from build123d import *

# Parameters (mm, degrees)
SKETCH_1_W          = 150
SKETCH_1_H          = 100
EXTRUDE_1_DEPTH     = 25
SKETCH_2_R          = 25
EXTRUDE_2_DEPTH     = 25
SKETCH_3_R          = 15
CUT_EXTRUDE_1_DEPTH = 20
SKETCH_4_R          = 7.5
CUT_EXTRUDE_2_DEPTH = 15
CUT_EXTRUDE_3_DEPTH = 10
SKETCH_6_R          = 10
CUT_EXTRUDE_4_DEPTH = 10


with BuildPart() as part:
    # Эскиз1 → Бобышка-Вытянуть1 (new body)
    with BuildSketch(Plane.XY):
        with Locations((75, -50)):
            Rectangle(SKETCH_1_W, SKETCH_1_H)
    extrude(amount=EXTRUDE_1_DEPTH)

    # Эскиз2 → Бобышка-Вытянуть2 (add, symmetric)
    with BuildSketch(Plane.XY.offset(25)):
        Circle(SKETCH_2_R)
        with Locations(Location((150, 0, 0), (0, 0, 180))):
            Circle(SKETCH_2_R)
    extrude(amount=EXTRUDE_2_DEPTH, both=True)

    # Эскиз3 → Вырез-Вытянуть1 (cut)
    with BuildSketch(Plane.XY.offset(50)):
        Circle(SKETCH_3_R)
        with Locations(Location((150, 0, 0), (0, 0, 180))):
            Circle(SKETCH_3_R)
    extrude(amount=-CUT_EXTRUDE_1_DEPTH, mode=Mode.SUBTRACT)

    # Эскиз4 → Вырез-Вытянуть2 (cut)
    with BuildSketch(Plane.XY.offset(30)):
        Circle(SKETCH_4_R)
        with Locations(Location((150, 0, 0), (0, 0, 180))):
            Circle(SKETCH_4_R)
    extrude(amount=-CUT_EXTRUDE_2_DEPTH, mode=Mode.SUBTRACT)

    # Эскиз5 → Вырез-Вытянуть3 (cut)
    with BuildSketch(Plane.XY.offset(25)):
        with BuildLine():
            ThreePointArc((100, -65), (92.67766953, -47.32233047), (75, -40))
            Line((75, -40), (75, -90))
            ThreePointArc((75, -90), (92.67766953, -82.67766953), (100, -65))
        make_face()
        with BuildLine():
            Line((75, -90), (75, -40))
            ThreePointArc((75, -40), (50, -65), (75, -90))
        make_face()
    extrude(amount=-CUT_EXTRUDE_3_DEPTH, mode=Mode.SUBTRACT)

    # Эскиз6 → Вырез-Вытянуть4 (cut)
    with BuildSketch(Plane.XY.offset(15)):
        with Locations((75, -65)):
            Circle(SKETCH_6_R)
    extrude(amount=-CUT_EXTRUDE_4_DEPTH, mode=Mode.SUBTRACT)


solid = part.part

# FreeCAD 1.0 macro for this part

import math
import FreeCAD as App
import Part
import Sketcher
Q = App.Units.Quantity

doc = App.newDocument("Part")
params = doc.addObject("Spreadsheet::Sheet", "Params")
for row, (alias, value) in enumerate([
    ("sketch1_width", "150 mm"),
    ("sketch1_height", "100 mm"),
    ("pad1_length", "25 mm"),
    ("sketch2_diameter", "50 mm"),
    ("pad2_length", "50 mm"),
    ("sketch3_diameter", "30 mm"),
    ("pocket1_length", "20 mm"),
    ("sketch4_diameter", "15 mm"),
    ("pocket2_length", "15 mm"),
    ("sketch5_radius", "25 mm"),
    ("pocket3_length", "10 mm"),
    ("sketch6_diameter", "20 mm"),
    ("pocket4_length", "10 mm"),
], start=1):
    params.set(f"A{row}", alias)
    params.set(f"B{row}", "=" + value)
    params.setAlias(f"B{row}", alias)

body = doc.addObject("PartDesign::Body", "Body")

# Sketch on XY plane
sketch1 = body.newObject("Sketcher::SketchObject", "Sketch")
sketch1.AttachmentSupport = (doc.getObject("XY_Plane"), [""])
sketch1.MapMode = "FlatFace"
sketch1.addGeometry(Part.LineSegment(App.Vector(0, 0, 0), App.Vector(0, -100, 0)), False)
sketch1.addGeometry(Part.LineSegment(App.Vector(0, -100, 0), App.Vector(150, -100, 0)), False)
sketch1.addGeometry(Part.LineSegment(App.Vector(150, -100, 0), App.Vector(150, 0, 0)), False)
sketch1.addGeometry(Part.LineSegment(App.Vector(150, 0, 0), App.Vector(0, 0, 0)), False)
sketch1.addConstraint(Sketcher.Constraint("Coincident", 0, 2, 1, 1))
sketch1.addConstraint(Sketcher.Constraint("Coincident", 1, 2, 2, 1))
sketch1.addConstraint(Sketcher.Constraint("Coincident", 2, 2, 3, 1))
sketch1.addConstraint(Sketcher.Constraint("Coincident", 3, 2, 0, 1))
sketch1.addConstraint(Sketcher.Constraint("Vertical", 0))
sketch1.addConstraint(Sketcher.Constraint("Horizontal", 1))
sketch1.addConstraint(Sketcher.Constraint("Vertical", 2))
sketch1.addConstraint(Sketcher.Constraint("Horizontal", 3))
sketch1.addConstraint(Sketcher.Constraint("Coincident", 3, 2, -1, 1))
sketch1.addConstraint(Sketcher.Constraint("DistanceX", 1, 1, 1, 2, Q("150 mm")))
sketch1.addConstraint(Sketcher.Constraint("DistanceY", 0, 2, 0, 1, Q("100 mm")))
sketch1.setExpression("Constraints[9]", "Params.sketch1_width")
sketch1.setExpression("Constraints[10]", "Params.sketch1_height")
pad1 = body.newObject("PartDesign::Pad", "Pad")
pad1.Profile = sketch1
pad1.setExpression("Length", "Params.pad1_length")

# Sketch on XY plane
sketch2 = body.newObject("Sketcher::SketchObject", "Sketch001")
sketch2.AttachmentSupport = (doc.getObject("XY_Plane"), [""])
sketch2.MapMode = "FlatFace"
sketch2.AttachmentOffset = App.Placement(App.Vector(0, 0, 25), App.Rotation())
sketch2.addGeometry(Part.Circle(App.Vector(0, 0, 0), App.Vector(0, 0, 1), 25), False)
sketch2.addGeometry(Part.Circle(App.Vector(150, 0, 0), App.Vector(0, 0, 1), 25), False)
sketch2.addConstraint(Sketcher.Constraint("Coincident", 0, 3, -1, 1))
sketch2.addConstraint(Sketcher.Constraint("Equal", 0, 1))
sketch2.addConstraint(Sketcher.Constraint("PointOnObject", 1, 3, -1))
sketch2.addConstraint(Sketcher.Constraint("Diameter", 0, Q("50 mm")))
sketch2.addConstraint(Sketcher.Constraint("DistanceX", -1, 1, 1, 3, Q("150 mm")))
sketch2.setExpression("Constraints[3]", "Params.sketch2_diameter")
pad2 = body.newObject("PartDesign::Pad", "Pad001")
pad2.Profile = sketch2
pad2.setExpression("Length", "Params.pad2_length")
pad2.Midplane = True

# Sketch on XY plane
sketch3 = body.newObject("Sketcher::SketchObject", "Sketch002")
sketch3.AttachmentSupport = (doc.getObject("XY_Plane"), [""])
sketch3.MapMode = "FlatFace"
sketch3.AttachmentOffset = App.Placement(App.Vector(0, 0, 50), App.Rotation())
sketch3.addGeometry(Part.Circle(App.Vector(0, 0, 0), App.Vector(0, 0, 1), 15), False)
sketch3.addGeometry(Part.Circle(App.Vector(150, 0, 0), App.Vector(0, 0, 1), 15), False)
sketch3.addConstraint(Sketcher.Constraint("Coincident", 0, 3, -1, 1))
sketch3.addConstraint(Sketcher.Constraint("Equal", 0, 1))
sketch3.addConstraint(Sketcher.Constraint("PointOnObject", 1, 3, -1))
sketch3.addConstraint(Sketcher.Constraint("Diameter", 0, Q("30 mm")))
sketch3.addConstraint(Sketcher.Constraint("DistanceX", -1, 1, 1, 3, Q("150 mm")))
sketch3.setExpression("Constraints[3]", "Params.sketch3_diameter")
pocket1 = body.newObject("PartDesign::Pocket", "Pocket")
pocket1.Profile = sketch3
pocket1.setExpression("Length", "Params.pocket1_length")

# Sketch on XY plane
sketch4 = body.newObject("Sketcher::SketchObject", "Sketch003")
sketch4.AttachmentSupport = (doc.getObject("XY_Plane"), [""])
sketch4.MapMode = "FlatFace"
sketch4.AttachmentOffset = App.Placement(App.Vector(0, 0, 30), App.Rotation())
sketch4.addGeometry(Part.Circle(App.Vector(0, 0, 0), App.Vector(0, 0, 1), 8), False)
sketch4.addGeometry(Part.Circle(App.Vector(150, 0, 0), App.Vector(0, 0, 1), 8), False)
sketch4.addConstraint(Sketcher.Constraint("Coincident", 0, 3, -1, 1))
sketch4.addConstraint(Sketcher.Constraint("Equal", 0, 1))
sketch4.addConstraint(Sketcher.Constraint("PointOnObject", 1, 3, -1))
sketch4.addConstraint(Sketcher.Constraint("Diameter", 0, Q("15 mm")))
sketch4.addConstraint(Sketcher.Constraint("DistanceX", -1, 1, 1, 3, Q("150 mm")))
sketch4.setExpression("Constraints[3]", "Params.sketch4_diameter")
pocket2 = body.newObject("PartDesign::Pocket", "Pocket001")
pocket2.Profile = sketch4
pocket2.setExpression("Length", "Params.pocket2_length")

# Sketch on XY plane
sketch5 = body.newObject("Sketcher::SketchObject", "Sketch004")
sketch5.AttachmentSupport = (doc.getObject("XY_Plane"), [""])
sketch5.MapMode = "FlatFace"
sketch5.AttachmentOffset = App.Placement(App.Vector(0, 0, 25), App.Rotation())
sketch5.addGeometry(Part.ArcOfCircle(Part.Circle(App.Vector(75, -65, 0), App.Vector(0, 0, 1), 25), math.radians(0), math.radians(90)), False)
sketch5.addGeometry(Part.ArcOfCircle(Part.Circle(App.Vector(75, -65, 0), App.Vector(0, 0, 1), 25), math.radians(90), math.radians(270)), False)
sketch5.addGeometry(Part.ArcOfCircle(Part.Circle(App.Vector(75, -65, 0), App.Vector(0, 0, 1), 25), math.radians(-90), math.radians(0)), False)
sketch5.addConstraint(Sketcher.Constraint("Tangent", 0, 2, 1, 1))
sketch5.addConstraint(Sketcher.Constraint("Tangent", 1, 2, 2, 1))
sketch5.addConstraint(Sketcher.Constraint("Tangent", 2, 2, 0, 1))
sketch5.addConstraint(Sketcher.Constraint("Horizontal", 1, 3, 2, 2))
sketch5.addConstraint(Sketcher.Constraint("Vertical", 2, 3, 0, 2))
sketch5.addConstraint(Sketcher.Constraint("Vertical", 0, 2, 1, 2))
sketch5.addConstraint(Sketcher.Constraint("Radius", 0, Q("25 mm")))
sketch5.addConstraint(Sketcher.Constraint("DistanceX", -1, 1, 0, 3, Q("75 mm")))
sketch5.addConstraint(Sketcher.Constraint("DistanceY", 0, 3, -1, 1, Q("65 mm")))
sketch5.setExpression("Constraints[6]", "Params.sketch5_radius")
pocket3 = body.newObject("PartDesign::Pocket", "Pocket002")
pocket3.Profile = sketch5
pocket3.setExpression("Length", "Params.pocket3_length")

# Sketch on XY plane
sketch6 = body.newObject("Sketcher::SketchObject", "Sketch005")
sketch6.AttachmentSupport = (doc.getObject("XY_Plane"), [""])
sketch6.MapMode = "FlatFace"
sketch6.AttachmentOffset = App.Placement(App.Vector(0, 0, 15), App.Rotation())
sketch6.addGeometry(Part.Circle(App.Vector(75, -65, 0), App.Vector(0, 0, 1), 10), False)
sketch6.addConstraint(Sketcher.Constraint("Diameter", 0, Q("20 mm")))
sketch6.addConstraint(Sketcher.Constraint("DistanceX", -1, 1, 0, 3, Q("75 mm")))
sketch6.addConstraint(Sketcher.Constraint("DistanceY", 0, 3, -1, 1, Q("65 mm")))
sketch6.setExpression("Constraints[0]", "Params.sketch6_diameter")
pocket4 = body.newObject("PartDesign::Pocket", "Pocket003")
pocket4.Profile = sketch6
pocket4.setExpression("Length", "Params.pocket4_length")

doc.recompute()
